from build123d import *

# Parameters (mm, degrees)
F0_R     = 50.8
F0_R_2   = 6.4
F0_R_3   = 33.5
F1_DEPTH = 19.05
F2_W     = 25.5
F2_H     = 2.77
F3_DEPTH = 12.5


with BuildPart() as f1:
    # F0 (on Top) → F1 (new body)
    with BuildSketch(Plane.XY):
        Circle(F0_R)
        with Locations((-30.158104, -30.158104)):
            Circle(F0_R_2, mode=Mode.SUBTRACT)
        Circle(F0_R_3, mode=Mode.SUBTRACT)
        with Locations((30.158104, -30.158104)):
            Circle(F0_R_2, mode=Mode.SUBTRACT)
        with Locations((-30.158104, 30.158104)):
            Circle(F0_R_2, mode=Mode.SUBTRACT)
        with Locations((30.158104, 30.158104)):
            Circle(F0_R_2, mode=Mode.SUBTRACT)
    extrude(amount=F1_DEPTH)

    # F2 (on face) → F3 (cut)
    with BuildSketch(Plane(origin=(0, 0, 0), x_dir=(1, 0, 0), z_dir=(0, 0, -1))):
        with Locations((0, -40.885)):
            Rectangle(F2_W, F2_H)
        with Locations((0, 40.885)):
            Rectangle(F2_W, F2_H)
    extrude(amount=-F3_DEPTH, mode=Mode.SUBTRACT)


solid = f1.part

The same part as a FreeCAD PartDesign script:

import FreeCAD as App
import Part
import Sketcher

doc = App.newDocument("Part")
params = doc.addObject("Spreadsheet::Sheet", "Params")
for row, (alias, value) in enumerate([
    ("sketch1_diameter", "67 mm"),
    ("sketch1_diameter2", "101.6 mm"),
    ("sketch1_diameter3", "12.8 mm"),
    ("pad1_length", "19.05 mm"),
    ("sketch2_width", "25.5 mm"),
    ("sketch2_height", "2.77 mm"),
    ("pocket1_length", "12.5 mm"),
], start=1):
    params.set(f"A{row}", alias)
    params.set(f"B{row}", "=" + value)
    params.setAlias(f"B{row}", alias)

body = doc.addObject("PartDesign::Body", "Body")

# Sketch on XY plane
sketch1 = body.newObject("Sketcher::SketchObject", "Sketch")
sketch1.AttachmentSupport = (doc.getObject("XY_Plane"), [""])
sketch1.MapMode = "FlatFace"
sketch1.addGeometry([
    Part.Circle(App.Vector(0, 0, 0), App.Vector(0, 0, 1), 50.8),  # 0
    Part.Circle(App.Vector(-30.158104, -30.158104, 0), App.Vector(0, 0, 1), 6.4),  # 1
    Part.Circle(App.Vector(30.158104, -30.158104, 0), App.Vector(0, 0, 1), 6.4),  # 2
    Part.Circle(App.Vector(0, 0, 0), App.Vector(0, 0, 1), 33.5),  # 3
    Part.Circle(App.Vector(-30.158104, 30.158104, 0), App.Vector(0, 0, 1), 6.4),  # 4
    Part.Circle(App.Vector(30.158104, 30.158104, 0), App.Vector(0, 0, 1), 6.4),  # 5
], False)
sketch1.addConstraint([
    Sketcher.Constraint("Coincident", 0, 3, -1, 1),
    Sketcher.Constraint("Coincident", 3, 3, -1, 1),
    Sketcher.Constraint("Equal", 1, 2),
    Sketcher.Constraint("Equal", 2, 4),
    Sketcher.Constraint("Equal", 4, 5),
    Sketcher.Constraint("Symmetric", 2, 3, 4, 3, -1, 1),
    Sketcher.Constraint("Symmetric", 1, 3, 5, 3, -1, 1),
    Sketcher.Constraint("Symmetric", 1, 3, 2, 3, -2),
    Sketcher.Constraint("Diameter", 3, 67.0),
    Sketcher.Constraint("Diameter", 0, 101.6),
    Sketcher.Constraint("Diameter", 1, 12.8),
    Sketcher.Constraint("DistanceX", 1, 3, 2, 3, 60.316208),
    Sketcher.Constraint("DistanceY", 1, 3, 4, 3, 60.316208),
])
sketch1.setExpression("Constraints[8]", "Params.sketch1_diameter")
sketch1.setExpression("Constraints[9]", "Params.sketch1_diameter2")
sketch1.setExpression("Constraints[10]", "Params.sketch1_diameter3")
pad1 = body.newObject("PartDesign::Pad", "Pad")
pad1.Profile = sketch1
pad1.setExpression("Length", "Params.pad1_length")

# Sketch on XY plane
sketch2 = body.newObject("Sketcher::SketchObject", "Sketch001")
sketch2.AttachmentSupport = (doc.getObject("XY_Plane"), [""])
sketch2.MapMode = "FlatFace"
sketch2.addGeometry([
    Part.LineSegment(App.Vector(-12.75, 39.5, 0), App.Vector(-12.75, 42.27, 0)),  # 0
    Part.LineSegment(App.Vector(-12.75, 42.27, 0), App.Vector(12.75, 42.27, 0)),  # 1
    Part.LineSegment(App.Vector(12.75, 42.27, 0), App.Vector(12.75, 39.5, 0)),  # 2
    Part.LineSegment(App.Vector(12.75, 39.5, 0), App.Vector(-12.75, 39.5, 0)),  # 3
    Part.LineSegment(App.Vector(-12.75, -42.27, 0), App.Vector(-12.75, -39.5, 0)),  # 4
    Part.LineSegment(App.Vector(-12.75, -39.5, 0), App.Vector(12.75, -39.5, 0)),  # 5
    Part.LineSegment(App.Vector(12.75, -39.5, 0), App.Vector(12.75, -42.27, 0)),  # 6
    Part.LineSegment(App.Vector(12.75, -42.27, 0), App.Vector(-12.75, -42.27, 0)),  # 7
], False)
sketch2.addConstraint([
    Sketcher.Constraint("Coincident", 0, 2, 1, 1),
    Sketcher.Constraint("Coincident", 1, 2, 2, 1),
    Sketcher.Constraint("Coincident", 2, 2, 3, 1),
    Sketcher.Constraint("Coincident", 3, 2, 0, 1),
    Sketcher.Constraint("Coincident", 4, 2, 5, 1),
    Sketcher.Constraint("Coincident", 5, 2, 6, 1),
    Sketcher.Constraint("Coincident", 6, 2, 7, 1),
    Sketcher.Constraint("Coincident", 7, 2, 4, 1),
    Sketcher.Constraint("Vertical", 0),
    Sketcher.Constraint("Horizontal", 1),
    Sketcher.Constraint("Vertical", 2),
    Sketcher.Constraint("Horizontal", 3),
    Sketcher.Constraint("Vertical", 4),
    Sketcher.Constraint("Horizontal", 5),
    Sketcher.Constraint("Vertical", 6),
    Sketcher.Constraint("Horizontal", 7),
    Sketcher.Constraint("Symmetric", 2, 2, 4, 2, -1, 1),
    Sketcher.Constraint("Symmetric", 0, 2, 6, 2, -1, 1),
    Sketcher.Constraint("Vertical", 3, 2, 4, 2),
    Sketcher.Constraint("DistanceX", 1, 1, 1, 2, 25.5),
    Sketcher.Constraint("DistanceY", 4, 2, 3, 2, 79.0),
    Sketcher.Constraint("DistanceY", 0, 1, 0, 2, 2.77),
])
sketch2.setExpression("Constraints[19]", "Params.sketch2_width")
sketch2.setExpression("Constraints[21]", "Params.sketch2_height")
pocket1 = body.newObject("PartDesign::Pocket", "Pocket")
pocket1.Profile = sketch2
pocket1.setExpression("Length", "Params.pocket1_length")
pocket1.Reversed = True

doc.recompute()
